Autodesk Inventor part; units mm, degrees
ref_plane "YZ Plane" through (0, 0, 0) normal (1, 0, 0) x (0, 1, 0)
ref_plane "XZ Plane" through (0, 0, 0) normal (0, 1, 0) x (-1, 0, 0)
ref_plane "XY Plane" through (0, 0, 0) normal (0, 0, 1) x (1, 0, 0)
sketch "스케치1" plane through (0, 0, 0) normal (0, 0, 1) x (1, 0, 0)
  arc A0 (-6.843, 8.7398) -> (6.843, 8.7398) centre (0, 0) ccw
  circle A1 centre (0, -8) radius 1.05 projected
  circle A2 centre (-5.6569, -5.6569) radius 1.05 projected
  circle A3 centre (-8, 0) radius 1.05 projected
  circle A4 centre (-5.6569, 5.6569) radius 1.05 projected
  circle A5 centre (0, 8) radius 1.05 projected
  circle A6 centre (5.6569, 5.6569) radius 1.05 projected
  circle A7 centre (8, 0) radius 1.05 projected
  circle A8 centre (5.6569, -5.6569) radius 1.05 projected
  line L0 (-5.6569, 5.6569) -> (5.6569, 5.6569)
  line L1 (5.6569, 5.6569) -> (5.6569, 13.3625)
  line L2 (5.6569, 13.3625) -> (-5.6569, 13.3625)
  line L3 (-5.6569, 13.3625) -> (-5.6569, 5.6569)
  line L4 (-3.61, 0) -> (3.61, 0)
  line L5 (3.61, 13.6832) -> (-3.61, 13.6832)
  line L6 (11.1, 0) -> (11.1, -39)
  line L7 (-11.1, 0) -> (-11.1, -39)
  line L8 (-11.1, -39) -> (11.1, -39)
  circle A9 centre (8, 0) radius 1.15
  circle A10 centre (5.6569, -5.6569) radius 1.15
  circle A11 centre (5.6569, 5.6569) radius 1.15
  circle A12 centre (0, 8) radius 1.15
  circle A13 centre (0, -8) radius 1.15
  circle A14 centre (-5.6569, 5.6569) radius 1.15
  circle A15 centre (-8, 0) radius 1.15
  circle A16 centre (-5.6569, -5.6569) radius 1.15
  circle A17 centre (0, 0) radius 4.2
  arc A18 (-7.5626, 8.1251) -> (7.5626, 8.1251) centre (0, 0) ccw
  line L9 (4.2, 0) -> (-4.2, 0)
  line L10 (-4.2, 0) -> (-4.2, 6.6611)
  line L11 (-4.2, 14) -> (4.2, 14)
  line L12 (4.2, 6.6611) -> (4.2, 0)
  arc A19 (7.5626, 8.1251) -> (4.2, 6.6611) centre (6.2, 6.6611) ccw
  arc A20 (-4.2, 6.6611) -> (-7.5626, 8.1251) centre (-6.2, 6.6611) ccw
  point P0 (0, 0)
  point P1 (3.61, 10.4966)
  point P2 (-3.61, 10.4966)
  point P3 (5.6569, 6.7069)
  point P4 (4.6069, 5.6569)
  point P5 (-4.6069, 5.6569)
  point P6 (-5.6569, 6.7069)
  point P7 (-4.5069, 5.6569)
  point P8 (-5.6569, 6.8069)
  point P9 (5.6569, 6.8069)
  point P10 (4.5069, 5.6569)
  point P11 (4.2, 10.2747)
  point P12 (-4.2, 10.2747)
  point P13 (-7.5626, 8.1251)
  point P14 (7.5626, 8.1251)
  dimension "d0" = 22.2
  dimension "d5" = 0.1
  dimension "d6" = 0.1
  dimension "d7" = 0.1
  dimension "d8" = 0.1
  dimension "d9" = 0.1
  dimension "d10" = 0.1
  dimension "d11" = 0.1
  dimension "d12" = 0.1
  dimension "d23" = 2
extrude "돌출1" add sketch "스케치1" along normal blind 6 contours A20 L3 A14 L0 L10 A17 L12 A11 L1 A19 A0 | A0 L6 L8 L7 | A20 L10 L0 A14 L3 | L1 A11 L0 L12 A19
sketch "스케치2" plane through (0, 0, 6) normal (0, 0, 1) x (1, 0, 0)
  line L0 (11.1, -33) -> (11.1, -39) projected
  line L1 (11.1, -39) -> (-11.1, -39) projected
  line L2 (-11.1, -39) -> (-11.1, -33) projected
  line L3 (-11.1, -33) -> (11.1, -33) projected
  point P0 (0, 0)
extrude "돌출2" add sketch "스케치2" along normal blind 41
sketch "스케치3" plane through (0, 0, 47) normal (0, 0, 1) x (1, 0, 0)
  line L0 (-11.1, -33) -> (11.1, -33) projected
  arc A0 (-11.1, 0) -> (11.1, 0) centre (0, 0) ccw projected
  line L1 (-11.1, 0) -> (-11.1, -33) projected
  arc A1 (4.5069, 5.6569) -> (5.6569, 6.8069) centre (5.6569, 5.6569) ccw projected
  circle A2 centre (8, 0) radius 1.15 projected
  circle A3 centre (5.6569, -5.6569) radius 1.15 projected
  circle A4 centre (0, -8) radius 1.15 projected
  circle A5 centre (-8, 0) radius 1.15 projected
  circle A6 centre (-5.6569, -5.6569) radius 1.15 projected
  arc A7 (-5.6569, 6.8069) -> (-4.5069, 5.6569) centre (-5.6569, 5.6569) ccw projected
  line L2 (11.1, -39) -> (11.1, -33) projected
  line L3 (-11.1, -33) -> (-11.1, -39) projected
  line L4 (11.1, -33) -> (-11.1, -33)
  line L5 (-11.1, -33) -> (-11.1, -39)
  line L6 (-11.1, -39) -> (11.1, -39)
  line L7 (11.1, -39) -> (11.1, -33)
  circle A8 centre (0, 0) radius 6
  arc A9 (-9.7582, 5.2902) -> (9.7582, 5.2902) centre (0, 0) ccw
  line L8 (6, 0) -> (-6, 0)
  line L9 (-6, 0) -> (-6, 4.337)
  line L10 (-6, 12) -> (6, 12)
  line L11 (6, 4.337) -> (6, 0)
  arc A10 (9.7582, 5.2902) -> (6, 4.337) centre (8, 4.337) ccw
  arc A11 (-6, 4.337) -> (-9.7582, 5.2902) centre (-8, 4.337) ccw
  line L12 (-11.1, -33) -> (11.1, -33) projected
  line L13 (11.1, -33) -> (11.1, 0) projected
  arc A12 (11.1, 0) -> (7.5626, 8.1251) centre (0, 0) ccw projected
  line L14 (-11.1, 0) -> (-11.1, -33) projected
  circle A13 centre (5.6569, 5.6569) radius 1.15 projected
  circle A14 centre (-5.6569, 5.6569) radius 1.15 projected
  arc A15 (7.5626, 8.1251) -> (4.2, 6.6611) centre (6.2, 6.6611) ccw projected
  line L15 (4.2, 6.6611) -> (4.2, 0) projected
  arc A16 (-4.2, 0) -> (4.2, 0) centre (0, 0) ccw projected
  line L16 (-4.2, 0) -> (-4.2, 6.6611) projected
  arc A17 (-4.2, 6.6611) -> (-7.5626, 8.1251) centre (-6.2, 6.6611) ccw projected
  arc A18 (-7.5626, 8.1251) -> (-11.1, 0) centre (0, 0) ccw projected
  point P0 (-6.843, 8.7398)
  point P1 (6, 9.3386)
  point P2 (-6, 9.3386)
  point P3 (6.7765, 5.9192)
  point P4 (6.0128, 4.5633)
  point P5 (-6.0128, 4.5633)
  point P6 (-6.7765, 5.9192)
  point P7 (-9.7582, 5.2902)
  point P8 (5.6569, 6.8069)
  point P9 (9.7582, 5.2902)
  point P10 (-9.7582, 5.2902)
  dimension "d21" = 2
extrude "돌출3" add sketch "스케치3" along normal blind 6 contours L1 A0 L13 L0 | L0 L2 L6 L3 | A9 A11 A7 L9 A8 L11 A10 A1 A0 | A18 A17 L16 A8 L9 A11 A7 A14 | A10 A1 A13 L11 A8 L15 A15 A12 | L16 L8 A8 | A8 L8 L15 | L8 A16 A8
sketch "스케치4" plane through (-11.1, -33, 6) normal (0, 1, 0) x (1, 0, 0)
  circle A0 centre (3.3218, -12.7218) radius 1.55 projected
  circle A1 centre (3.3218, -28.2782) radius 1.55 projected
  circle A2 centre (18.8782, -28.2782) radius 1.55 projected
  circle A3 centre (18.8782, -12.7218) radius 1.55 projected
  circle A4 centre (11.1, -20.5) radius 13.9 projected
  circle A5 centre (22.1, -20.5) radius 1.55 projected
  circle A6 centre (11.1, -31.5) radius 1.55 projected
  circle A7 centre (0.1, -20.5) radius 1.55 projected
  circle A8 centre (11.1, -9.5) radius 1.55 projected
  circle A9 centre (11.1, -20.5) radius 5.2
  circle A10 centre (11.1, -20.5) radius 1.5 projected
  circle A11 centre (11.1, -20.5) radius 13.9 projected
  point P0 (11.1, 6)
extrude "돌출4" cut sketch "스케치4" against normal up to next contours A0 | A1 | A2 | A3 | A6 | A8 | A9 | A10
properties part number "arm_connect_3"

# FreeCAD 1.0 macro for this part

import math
import FreeCAD as App
import Part
import Sketcher

V = App.Vector
Q = App.Units.Quantity

doc = App.newDocument("Part")
params = doc.addObject("Spreadsheet::Sheet", "Params")
for row, (alias, value) in enumerate([
    ("sketch1_radius", "2 mm"),
    ("sketch1_radius2", "11.1 mm"),
    ("sketch1_diameter", "2.3 mm"),
    ("sketch1_radius3", "4.2 mm"),
    ("sketch1_height", "39 mm"),
    ("pad1_length", "6 mm"),
    ("sketch2_height", "6 mm"),
    ("sketch2_width", "22.2 mm"),
    ("pad2_length", "41 mm"),
    ("sketch3_radius", "2 mm"),
    ("sketch3_diameter", "2.3 mm"),
    ("sketch3_radius2", "11.1 mm"),
    ("sketch3_radius3", "4.2 mm"),
    ("sketch3_height", "39 mm"),
    ("pad3_length", "6 mm"),
    ("sketch4_diameter", "3.1 mm"),
    ("sketch4_diameter2", "10.4 mm"),
], start=1):
    params.set(f"A{row}", alias)
    params.set(f"B{row}", "=" + value)
    params.setAlias(f"B{row}", alias)

body = doc.addObject("PartDesign::Body", "Body")

# Sketch on XY plane
sketch1 = doc.addObject("Sketcher::SketchObject", "Sketch")
body.addObject(sketch1)
sketch1.AttachmentSupport = (doc.XY_Plane, [""])
sketch1.MapMode = "FlatFace"
sketch1.addGeometry(Part.ArcOfCircle(Part.Circle(V(0, 0, 0), V(0, 0, 1), 11.1), math.radians(133), math.radians(180)), False)
sketch1.addGeometry(Part.LineSegment(V(-11.1, 0, 0), V(-11.1, -39, 0)), False)
sketch1.addGeometry(Part.LineSegment(V(-11.1, -39, 0), V(11.1, -39, 0)), False)
sketch1.addGeometry(Part.LineSegment(V(11.1, -39, 0), V(11.1, 0, 0)), False)
sketch1.addGeometry(Part.ArcOfCircle(Part.Circle(V(0, 0, 0), V(0, 0, 1), 11.1), math.radians(0), math.radians(47)), False)
sketch1.addGeometry(Part.ArcOfCircle(Part.Circle(V(6.2, 6.7, 0), V(0, 0, 1), 2), math.radians(47), math.radians(180)), False)
sketch1.addGeometry(Part.LineSegment(V(4.2, 6.7, 0), V(4.2, 0, 0)), False)
sketch1.addGeometry(Part.ArcOfCircle(Part.Circle(V(0, 0, 0), V(0, 0, 1), 4.2), math.radians(180), math.radians(360)), False)
sketch1.addGeometry(Part.LineSegment(V(-4.2, 0, 0), V(-4.2, 6.7, 0)), False)
sketch1.addGeometry(Part.ArcOfCircle(Part.Circle(V(-6.2, 6.7, 0), V(0, 0, 1), 2), math.radians(0), math.radians(133)), False)
sketch1.addGeometry(Part.Circle(V(-5.7, 5.7, 0), V(0, 0, 1), 1.1), False)
sketch1.addGeometry(Part.Circle(V(5.7, 5.7, 0), V(0, 0, 1), 1.1), False)
sketch1.addGeometry(Part.Circle(V(-5.7, -5.7, 0), V(0, 0, 1), 1.1), False)
sketch1.addGeometry(Part.Circle(V(-8, 0, 0), V(0, 0, 1), 1.1), False)
sketch1.addGeometry(Part.Circle(V(0, -8, 0), V(0, 0, 1), 1.1), False)
sketch1.addGeometry(Part.Circle(V(5.7, -5.7, 0), V(0, 0, 1), 1.1), False)
sketch1.addGeometry(Part.Circle(V(8, 0, 0), V(0, 0, 1), 1.1), False)
sketch1.addConstraint(Sketcher.Constraint("Tangent", 0, 2, 1, 1))
sketch1.addConstraint(Sketcher.Constraint("Coincident", 1, 2, 2, 1))
sketch1.addConstraint(Sketcher.Constraint("Coincident", 2, 2, 3, 1))
sketch1.addConstraint(Sketcher.Constraint("Tangent", 3, 2, 4, 1))
sketch1.addConstraint(Sketcher.Constraint("Tangent", 4, 2, 5, 1))
sketch1.addConstraint(Sketcher.Constraint("Tangent", 5, 2, 6, 1))
sketch1.addConstraint(Sketcher.Constraint("Tangent", 6, 2, 7, 2))
sketch1.addConstraint(Sketcher.Constraint("Tangent", 7, 1, 8, 1))
sketch1.addConstraint(Sketcher.Constraint("Tangent", 8, 2, 9, 1))
sketch1.addConstraint(Sketcher.Constraint("Tangent", 9, 2, 0, 1))
sketch1.addConstraint(Sketcher.Constraint("Vertical", 1))
sketch1.addConstraint(Sketcher.Constraint("Horizontal", 2))
sketch1.addConstraint(Sketcher.Constraint("Vertical", 3))
sketch1.addConstraint(Sketcher.Constraint("Vertical", 6))
sketch1.addConstraint(Sketcher.Constraint("Vertical", 8))
sketch1.addConstraint(Sketcher.Constraint("Coincident", 0, 3, -1, 1))
sketch1.addConstraint(Sketcher.Constraint("Coincident", 4, 3, -1, 1))
sketch1.addConstraint(Sketcher.Constraint("Coincident", 7, 3, -1, 1))
sketch1.addConstraint(Sketcher.Constraint("Equal", 0, 4))
sketch1.addConstraint(Sketcher.Constraint("Equal", 5, 9))
sketch1.addConstraint(Sketcher.Constraint("Equal", 10, 11))
sketch1.addConstraint(Sketcher.Constraint("Equal", 11, 12))
sketch1.addConstraint(Sketcher.Constraint("Equal", 12, 13))
sketch1.addConstraint(Sketcher.Constraint("Equal", 13, 14))
sketch1.addConstraint(Sketcher.Constraint("Equal", 14, 15))
sketch1.addConstraint(Sketcher.Constraint("Equal", 15, 16))
sketch1.addConstraint(Sketcher.Constraint("Symmetric", 11, 3, 12, 3, -1, 1))
sketch1.addConstraint(Sketcher.Constraint("Symmetric", 10, 3, 15, 3, -1, 1))
sketch1.addConstraint(Sketcher.Constraint("Symmetric", 13, 3, 16, 3, -1, 1))
sketch1.addConstraint(Sketcher.Constraint("Symmetric", 10, 3, 11, 3, -2))
sketch1.addConstraint(Sketcher.Constraint("PointOnObject", 13, 3, -1))
sketch1.addConstraint(Sketcher.Constraint("PointOnObject", 14, 3, -2))
sketch1.addConstraint(Sketcher.Constraint("Radius", 5, Q("2 mm")))
sketch1.addConstraint(Sketcher.Constraint("Radius", 0, Q("11.1 mm")))
sketch1.addConstraint(Sketcher.Constraint("Diameter", 10, Q("2.3 mm")))
sketch1.addConstraint(Sketcher.Constraint("Radius", 7, Q("4.2 mm")))
sketch1.addConstraint(Sketcher.Constraint("DistanceY", 1, 2, 1, 1, Q("39 mm")))
sketch1.addConstraint(Sketcher.Constraint("DistanceX", 13, 3, -1, 1, Q("8 mm")))
sketch1.addConstraint(Sketcher.Constraint("DistanceY", 14, 3, -1, 1, Q("8 mm")))
sketch1.addConstraint(Sketcher.Constraint("DistanceX", 10, 3, -1, 1, Q("5.657 mm")))
sketch1.addConstraint(Sketcher.Constraint("DistanceY", -1, 1, 10, 3, Q("5.657 mm")))
sketch1.setExpression("Constraints[32]", "Params.sketch1_radius")
sketch1.setExpression("Constraints[33]", "Params.sketch1_radius2")
sketch1.setExpression("Constraints[34]", "Params.sketch1_diameter")
sketch1.setExpression("Constraints[35]", "Params.sketch1_radius3")
sketch1.setExpression("Constraints[36]", "Params.sketch1_height")
pad1 = doc.addObject("PartDesign::Pad", "Pad")
body.addObject(pad1)
pad1.Profile = sketch1
pad1.setExpression("Length", "Params.pad1_length")

# Sketch on XY plane
sketch2 = doc.addObject("Sketcher::SketchObject", "Sketch001")
body.addObject(sketch2)
sketch2.AttachmentSupport = (doc.XY_Plane, [""])
sketch2.MapMode = "FlatFace"
sketch2.AttachmentOffset = App.Placement(V(0, 0, 6), App.Rotation())
sketch2.addGeometry(Part.LineSegment(V(11, -39, 0), V(11, -33, 0)), False)
sketch2.addGeometry(Part.LineSegment(V(11, -33, 0), V(-11, -33, 0)), False)
sketch2.addGeometry(Part.LineSegment(V(-11, -33, 0), V(-11, -39, 0)), False)
sketch2.addGeometry(Part.LineSegment(V(-11, -39, 0), V(11, -39, 0)), False)
sketch2.addConstraint(Sketcher.Constraint("Coincident", 0, 2, 1, 1))
sketch2.addConstraint(Sketcher.Constraint("Coincident", 1, 2, 2, 1))
sketch2.addConstraint(Sketcher.Constraint("Coincident", 2, 2, 3, 1))
sketch2.addConstraint(Sketcher.Constraint("Coincident", 3, 2, 0, 1))
sketch2.addConstraint(Sketcher.Constraint("Vertical", 0))
sketch2.addConstraint(Sketcher.Constraint("Horizontal", 1))
sketch2.addConstraint(Sketcher.Constraint("Vertical", 2))
sketch2.addConstraint(Sketcher.Constraint("Horizontal", 3))
sketch2.addConstraint(Sketcher.Constraint("DistanceY", 0, 1, 0, 2, Q("6 mm")))
sketch2.addConstraint(Sketcher.Constraint("DistanceX", 1, 2, 1, 1, Q("22.2 mm")))
sketch2.addConstraint(Sketcher.Constraint("DistanceY", 0, 2, -1, 1, Q("33 mm")))
sketch2.addConstraint(Sketcher.Constraint("DistanceX", -1, 1, 0, 2, Q("11.1 mm")))
sketch2.setExpression("Constraints[8]", "Params.sketch2_height")
sketch2.setExpression("Constraints[9]", "Params.sketch2_width")
pad2 = doc.addObject("PartDesign::Pad", "Pad001")
body.addObject(pad2)
pad2.Profile = sketch2
pad2.setExpression("Length", "Params.pad2_length")

# Sketch on XY plane
sketch3 = doc.addObject("Sketcher::SketchObject", "Sketch002")
body.addObject(sketch3)
sketch3.AttachmentSupport = (doc.XY_Plane, [""])
sketch3.MapMode = "FlatFace"
sketch3.AttachmentOffset = App.Placement(V(0, 0, 47), App.Rotation())
sketch3.addGeometry(Part.LineSegment(V(-11.1, 0, 0), V(-11.1, -39, 0)), False)
sketch3.addGeometry(Part.LineSegment(V(-11.1, -39, 0), V(11.1, -39, 0)), False)
sketch3.addGeometry(Part.LineSegment(V(11.1, -39, 0), V(11.1, 0, 0)), False)
sketch3.addGeometry(Part.ArcOfCircle(Part.Circle(V(0, 0, 0), V(0, 0, 1), 11.1), math.radians(0), math.radians(28)), False)
sketch3.addGeometry(Part.ArcOfCircle(Part.Circle(V(0, 0, 0), V(0, 0, 1), 11.1), math.radians(28.46), math.radians(47.05)), False)
sketch3.addGeometry(Part.ArcOfCircle(Part.Circle(V(6.2, 6.7, 0), V(0, 0, 1), 2), math.radians(47), math.radians(180)), False)
sketch3.addGeometry(Part.LineSegment(V(4.2, 6.7, 0), V(4.2, 0, 0)), False)
sketch3.addGeometry(Part.ArcOfCircle(Part.Circle(V(0, 0, 0), V(0, 0, 1), 4.2), math.radians(180), math.radians(360)), False)
sketch3.addGeometry(Part.LineSegment(V(-4.2, 0, 0), V(-4.2, 6.7, 0)), False)
sketch3.addGeometry(Part.ArcOfCircle(Part.Circle(V(-6.2, 6.7, 0), V(0, 0, 1), 2), math.radians(0), math.radians(133)), False)
sketch3.addGeometry(Part.ArcOfCircle(Part.Circle(V(0, 0, 0), V(0, 0, 1), 11.1), math.radians(132.95), math.radians(151.54)), False)
sketch3.addGeometry(Part.ArcOfCircle(Part.Circle(V(0, 0, 0), V(0, 0, 1), 11.1), math.radians(152), math.radians(180)), False)
sketch3.addGeometry(Part.Circle(V(-5.7, 5.7, 0), V(0, 0, 1), 1.1), False)
sketch3.addGeometry(Part.Circle(V(5.7, 5.7, 0), V(0, 0, 1), 1.1), False)
sketch3.addGeometry(Part.Circle(V(8, 0, 0), V(0, 0, 1), 1.1), False)
sketch3.addGeometry(Part.Circle(V(-5.7, -5.7, 0), V(0, 0, 1), 1.1), False)
sketch3.addGeometry(Part.Circle(V(-8, 0, 0), V(0, 0, 1), 1.1), False)
sketch3.addGeometry(Part.Circle(V(0, -8, 0), V(0, 0, 1), 1.1), False)
sketch3.addGeometry(Part.Circle(V(5.7, -5.7, 0), V(0, 0, 1), 1.1), False)
sketch3.addConstraint(Sketcher.Constraint("Coincident", 0, 2, 1, 1))
sketch3.addConstraint(Sketcher.Constraint("Coincident", 1, 2, 2, 1))
sketch3.addConstraint(Sketcher.Constraint("Tangent", 2, 2, 3, 1))
sketch3.addConstraint(Sketcher.Constraint("Tangent", 3, 2, 4, 1))
sketch3.addConstraint(Sketcher.Constraint("Tangent", 4, 2, 5, 1))
sketch3.addConstraint(Sketcher.Constraint("Tangent", 5, 2, 6, 1))
sketch3.addConstraint(Sketcher.Constraint("Tangent", 6, 2, 7, 2))
sketch3.addConstraint(Sketcher.Constraint("Tangent", 7, 1, 8, 1))
sketch3.addConstraint(Sketcher.Constraint("Tangent", 8, 2, 9, 1))
sketch3.addConstraint(Sketcher.Constraint("Tangent", 9, 2, 10, 1))
sketch3.addConstraint(Sketcher.Constraint("Tangent", 10, 2, 11, 1))
sketch3.addConstraint(Sketcher.Constraint("Tangent", 11, 2, 0, 1))
sketch3.addConstraint(Sketcher.Constraint("Vertical", 0))
sketch3.addConstraint(Sketcher.Constraint("Horizontal", 1))
sketch3.addConstraint(Sketcher.Constraint("Vertical", 2))
sketch3.addConstraint(Sketcher.Constraint("Vertical", 6))
sketch3.addConstraint(Sketcher.Constraint("Vertical", 8))
sketch3.addConstraint(Sketcher.Constraint("Coincident", 3, 3, -1, 1))
sketch3.addConstraint(Sketcher.Constraint("Coincident", 7, 3, -1, 1))
sketch3.addConstraint(Sketcher.Constraint("Coincident", 10, 3, -1, 1))
sketch3.addConstraint(Sketcher.Constraint("Equal", 3, 4))
sketch3.addConstraint(Sketcher.Constraint("Equal", 5, 9))
sketch3.addConstraint(Sketcher.Constraint("Equal", 4, 10))
sketch3.addConstraint(Sketcher.Constraint("Equal", 10, 11))
sketch3.addConstraint(Sketcher.Constraint("Equal", 12, 13))
sketch3.addConstraint(Sketcher.Constraint("Equal", 13, 14))
sketch3.addConstraint(Sketcher.Constraint("Equal", 14, 15))
sketch3.addConstraint(Sketcher.Constraint("Equal", 15, 16))
sketch3.addConstraint(Sketcher.Constraint("Equal", 16, 17))
sketch3.addConstraint(Sketcher.Constraint("Equal", 17, 18))
sketch3.addConstraint(Sketcher.Constraint("Symmetric", 13, 3, 15, 3, -1, 1))
sketch3.addConstraint(Sketcher.Constraint("Symmetric", 14, 3, 16, 3, -1, 1))
sketch3.addConstraint(Sketcher.Constraint("Symmetric", 12, 3, 18, 3, -1, 1))
sketch3.addConstraint(Sketcher.Constraint("Symmetric", 12, 3, 13, 3, -2))
sketch3.addConstraint(Sketcher.Constraint("PointOnObject", 14, 3, -1))
sketch3.addConstraint(Sketcher.Constraint("PointOnObject", 17, 3, -2))
sketch3.addConstraint(Sketcher.Constraint("Horizontal", 3, 2, 10, 2))
sketch3.addConstraint(Sketcher.Constraint("Radius", 5, Q("2 mm")))
sketch3.addConstraint(Sketcher.Constraint("Diameter", 12, Q("2.3 mm")))
sketch3.addConstraint(Sketcher.Constraint("Radius", 3, Q("11.1 mm")))
sketch3.addConstraint(Sketcher.Constraint("Radius", 7, Q("4.2 mm")))
sketch3.addConstraint(Sketcher.Constraint("DistanceY", 0, 2, 0, 1, Q("39 mm")))
sketch3.addConstraint(Sketcher.Constraint("DistanceX", -1, 1, 14, 3, Q("8 mm")))
sketch3.addConstraint(Sketcher.Constraint("DistanceY", 17, 3, -1, 1, Q("8 mm")))
sketch3.addConstraint(Sketcher.Constraint("DistanceX", 12, 3, -1, 1, Q("5.657 mm")))
sketch3.addConstraint(Sketcher.Constraint("DistanceY", -1, 1, 12, 3, Q("5.657 mm")))
sketch3.addConstraint(Sketcher.Constraint("DistanceY", 3, 2, 5, 3, Q("1.371 mm")))
sketch3.setExpression("Constraints[37]", "Params.sketch3_radius")
sketch3.setExpression("Constraints[38]", "Params.sketch3_diameter")
sketch3.setExpression("Constraints[39]", "Params.sketch3_radius2")
sketch3.setExpression("Constraints[40]", "Params.sketch3_radius3")
sketch3.setExpression("Constraints[41]", "Params.sketch3_height")
pad3 = doc.addObject("PartDesign::Pad", "Pad002")
body.addObject(pad3)
pad3.Profile = sketch3
pad3.setExpression("Length", "Params.pad3_length")

# Sketch on XZ plane
sketch4 = doc.addObject("Sketcher::SketchObject", "Sketch003")
body.addObject(sketch4)
sketch4.AttachmentSupport = (doc.XZ_Plane, [""])
sketch4.MapMode = "FlatFace"
sketch4.AttachmentOffset = App.Placement(V(0, 0, 33), App.Rotation())
sketch4.addGeometry(Part.Circle(V(-7.8, 18.7, 0), V(0, 0, 1), 1.6), False)
sketch4.addGeometry(Part.Circle(V(-7.8, 34.3, 0), V(0, 0, 1), 1.6), False)
sketch4.addGeometry(Part.Circle(V(7.8, 34.3, 0), V(0, 0, 1), 1.6), False)
sketch4.addGeometry(Part.Circle(V(7.8, 18.7, 0), V(0, 0, 1), 1.6), False)
sketch4.addGeometry(Part.Circle(V(0, 37.5, 0), V(0, 0, 1), 1.6), False)
sketch4.addGeometry(Part.Circle(V(0, 15.5, 0), V(0, 0, 1), 1.6), False)
sketch4.addGeometry(Part.Circle(V(0, 26.5, 0), V(0, 0, 1), 5.2), False)
sketch4.addConstraint(Sketcher.Constraint("Equal", 0, 1))
sketch4.addConstraint(Sketcher.Constraint("Equal", 1, 2))
sketch4.addConstraint(Sketcher.Constraint("Equal", 2, 3))
sketch4.addConstraint(Sketcher.Constraint("Equal", 3, 4))
sketch4.addConstraint(Sketcher.Constraint("Equal", 4, 5))
sketch4.addConstraint(Sketcher.Constraint("Symmetric", 1, 3, 2, 3, -2))
sketch4.addConstraint(Sketcher.Constraint("Symmetric", 0, 3, 3, 3, -2))
sketch4.addConstraint(Sketcher.Constraint("PointOnObject", 4, 3, -2))
sketch4.addConstraint(Sketcher.Constraint("PointOnObject", 5, 3, -2))
sketch4.addConstraint(Sketcher.Constraint("PointOnObject", 6, 3, -2))
sketch4.addConstraint(Sketcher.Constraint("Vertical", 0, 3, 1, 3))
sketch4.addConstraint(Sketcher.Constraint("Diameter", 0, Q("3.1 mm")))
sketch4.addConstraint(Sketcher.Constraint("Diameter", 6, Q("10.4 mm")))
sketch4.addConstraint(Sketcher.Constraint("DistanceY", 5, 3, 4, 3, Q("22 mm")))
sketch4.addConstraint(Sketcher.Constraint("DistanceY", 6, 3, 4, 3, Q("11 mm")))
sketch4.addConstraint(Sketcher.Constraint("DistanceY", -1, 1, 4, 3, Q("37.5 mm")))
sketch4.addConstraint(Sketcher.Constraint("DistanceX", 0, 3, -1, 1, Q("7.7782 mm")))
sketch4.addConstraint(Sketcher.Constraint("DistanceY", -1, 1, 0, 3, Q("18.7218 mm")))
sketch4.addConstraint(Sketcher.Constraint("DistanceY", -1, 1, 1, 3, Q("34.2782 mm")))
sketch4.setExpression("Constraints[11]", "Params.sketch4_diameter")
sketch4.setExpression("Constraints[12]", "Params.sketch4_diameter2")
pocket1 = doc.addObject("PartDesign::Pocket", "Pocket")
body.addObject(pocket1)
pocket1.Profile = sketch4
pocket1.Type = "UpToFirst"
pocket1.Reversed = True

doc.recompute()
